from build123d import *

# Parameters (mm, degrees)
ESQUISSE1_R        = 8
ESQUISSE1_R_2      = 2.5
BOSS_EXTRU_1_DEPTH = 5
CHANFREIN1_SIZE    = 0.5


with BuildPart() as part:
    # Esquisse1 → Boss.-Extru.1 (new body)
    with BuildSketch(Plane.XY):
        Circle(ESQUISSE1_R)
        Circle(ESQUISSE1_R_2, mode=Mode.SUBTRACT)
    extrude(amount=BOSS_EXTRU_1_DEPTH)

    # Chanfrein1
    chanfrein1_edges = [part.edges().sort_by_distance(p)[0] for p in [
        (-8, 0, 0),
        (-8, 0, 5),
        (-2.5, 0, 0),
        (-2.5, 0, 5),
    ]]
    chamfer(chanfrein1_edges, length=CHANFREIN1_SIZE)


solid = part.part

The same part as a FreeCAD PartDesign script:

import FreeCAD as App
import Part
import Sketcher
from FreeCAD import Vector
Q = App.Units.Quantity


def edges_at(feature, points):
    """Names of the edges that pass closest to the given points."""
    edges = feature.Shape.Edges
    near = lambda p: min(range(len(edges)), key=lambda i: edges[i].distToShape(Part.Vertex(*p))[0])
    return sorted({f"Edge{near(p) + 1}" for p in points})

doc = App.newDocument("Part")
params = doc.addObject("Spreadsheet::Sheet", "Params")
for row, (alias, value) in enumerate([
    ("sketch1_diameter", "16 mm"),
    ("sketch1_diameter2", "5 mm"),
    ("pad1_length", "5 mm"),
    ("chamfer_size", "0.5 mm"),
], start=1):
    params.set(f"A{row}", alias)
    params.set(f"B{row}", "=" + value)
    params.setAlias(f"B{row}", alias)

body = doc.addObject("PartDesign::Body", "Body")

sketch1 = body.newObject("Sketcher::SketchObject", "Sketch")
sketch1.AttachmentSupport = (doc.getObject("XY_Plane"), [""])
sketch1.MapMode = "FlatFace"
sketch1.addGeometry(Part.Circle(Vector(0, 0, 0), Vector(0, 0, 1), 8), False)
sketch1.addGeometry(Part.Circle(Vector(0, 0, 0), Vector(0, 0, 1), 2.5), False)
sketch1.addConstraint(Sketcher.Constraint("Coincident", 0, 3, -1, 1))
sketch1.addConstraint(Sketcher.Constraint("Coincident", 1, 3, -1, 1))
sketch1.addConstraint(Sketcher.Constraint("Diameter", 0, Q("16 mm")))
sketch1.addConstraint(Sketcher.Constraint("Diameter", 1, Q("5 mm")))
sketch1.setExpression("Constraints[2]", "Params.sketch1_diameter")
sketch1.setExpression("Constraints[3]", "Params.sketch1_diameter2")
pad1 = body.newObject("PartDesign::Pad", "Pad")
pad1.Profile = sketch1
pad1.setExpression("Length", "Params.pad1_length")
doc.recompute()

chamfer = body.newObject("PartDesign::Chamfer", "Chamfer")
chamfer.Base = (pad1, edges_at(pad1, [
    (-8, 0, 0),
    (-8, 0, 5),
    (-2.5, 0, 0),
    (-2.5, 0, 5),
]))
chamfer.setExpression("Size", "Params.chamfer_size")

doc.recompute()
